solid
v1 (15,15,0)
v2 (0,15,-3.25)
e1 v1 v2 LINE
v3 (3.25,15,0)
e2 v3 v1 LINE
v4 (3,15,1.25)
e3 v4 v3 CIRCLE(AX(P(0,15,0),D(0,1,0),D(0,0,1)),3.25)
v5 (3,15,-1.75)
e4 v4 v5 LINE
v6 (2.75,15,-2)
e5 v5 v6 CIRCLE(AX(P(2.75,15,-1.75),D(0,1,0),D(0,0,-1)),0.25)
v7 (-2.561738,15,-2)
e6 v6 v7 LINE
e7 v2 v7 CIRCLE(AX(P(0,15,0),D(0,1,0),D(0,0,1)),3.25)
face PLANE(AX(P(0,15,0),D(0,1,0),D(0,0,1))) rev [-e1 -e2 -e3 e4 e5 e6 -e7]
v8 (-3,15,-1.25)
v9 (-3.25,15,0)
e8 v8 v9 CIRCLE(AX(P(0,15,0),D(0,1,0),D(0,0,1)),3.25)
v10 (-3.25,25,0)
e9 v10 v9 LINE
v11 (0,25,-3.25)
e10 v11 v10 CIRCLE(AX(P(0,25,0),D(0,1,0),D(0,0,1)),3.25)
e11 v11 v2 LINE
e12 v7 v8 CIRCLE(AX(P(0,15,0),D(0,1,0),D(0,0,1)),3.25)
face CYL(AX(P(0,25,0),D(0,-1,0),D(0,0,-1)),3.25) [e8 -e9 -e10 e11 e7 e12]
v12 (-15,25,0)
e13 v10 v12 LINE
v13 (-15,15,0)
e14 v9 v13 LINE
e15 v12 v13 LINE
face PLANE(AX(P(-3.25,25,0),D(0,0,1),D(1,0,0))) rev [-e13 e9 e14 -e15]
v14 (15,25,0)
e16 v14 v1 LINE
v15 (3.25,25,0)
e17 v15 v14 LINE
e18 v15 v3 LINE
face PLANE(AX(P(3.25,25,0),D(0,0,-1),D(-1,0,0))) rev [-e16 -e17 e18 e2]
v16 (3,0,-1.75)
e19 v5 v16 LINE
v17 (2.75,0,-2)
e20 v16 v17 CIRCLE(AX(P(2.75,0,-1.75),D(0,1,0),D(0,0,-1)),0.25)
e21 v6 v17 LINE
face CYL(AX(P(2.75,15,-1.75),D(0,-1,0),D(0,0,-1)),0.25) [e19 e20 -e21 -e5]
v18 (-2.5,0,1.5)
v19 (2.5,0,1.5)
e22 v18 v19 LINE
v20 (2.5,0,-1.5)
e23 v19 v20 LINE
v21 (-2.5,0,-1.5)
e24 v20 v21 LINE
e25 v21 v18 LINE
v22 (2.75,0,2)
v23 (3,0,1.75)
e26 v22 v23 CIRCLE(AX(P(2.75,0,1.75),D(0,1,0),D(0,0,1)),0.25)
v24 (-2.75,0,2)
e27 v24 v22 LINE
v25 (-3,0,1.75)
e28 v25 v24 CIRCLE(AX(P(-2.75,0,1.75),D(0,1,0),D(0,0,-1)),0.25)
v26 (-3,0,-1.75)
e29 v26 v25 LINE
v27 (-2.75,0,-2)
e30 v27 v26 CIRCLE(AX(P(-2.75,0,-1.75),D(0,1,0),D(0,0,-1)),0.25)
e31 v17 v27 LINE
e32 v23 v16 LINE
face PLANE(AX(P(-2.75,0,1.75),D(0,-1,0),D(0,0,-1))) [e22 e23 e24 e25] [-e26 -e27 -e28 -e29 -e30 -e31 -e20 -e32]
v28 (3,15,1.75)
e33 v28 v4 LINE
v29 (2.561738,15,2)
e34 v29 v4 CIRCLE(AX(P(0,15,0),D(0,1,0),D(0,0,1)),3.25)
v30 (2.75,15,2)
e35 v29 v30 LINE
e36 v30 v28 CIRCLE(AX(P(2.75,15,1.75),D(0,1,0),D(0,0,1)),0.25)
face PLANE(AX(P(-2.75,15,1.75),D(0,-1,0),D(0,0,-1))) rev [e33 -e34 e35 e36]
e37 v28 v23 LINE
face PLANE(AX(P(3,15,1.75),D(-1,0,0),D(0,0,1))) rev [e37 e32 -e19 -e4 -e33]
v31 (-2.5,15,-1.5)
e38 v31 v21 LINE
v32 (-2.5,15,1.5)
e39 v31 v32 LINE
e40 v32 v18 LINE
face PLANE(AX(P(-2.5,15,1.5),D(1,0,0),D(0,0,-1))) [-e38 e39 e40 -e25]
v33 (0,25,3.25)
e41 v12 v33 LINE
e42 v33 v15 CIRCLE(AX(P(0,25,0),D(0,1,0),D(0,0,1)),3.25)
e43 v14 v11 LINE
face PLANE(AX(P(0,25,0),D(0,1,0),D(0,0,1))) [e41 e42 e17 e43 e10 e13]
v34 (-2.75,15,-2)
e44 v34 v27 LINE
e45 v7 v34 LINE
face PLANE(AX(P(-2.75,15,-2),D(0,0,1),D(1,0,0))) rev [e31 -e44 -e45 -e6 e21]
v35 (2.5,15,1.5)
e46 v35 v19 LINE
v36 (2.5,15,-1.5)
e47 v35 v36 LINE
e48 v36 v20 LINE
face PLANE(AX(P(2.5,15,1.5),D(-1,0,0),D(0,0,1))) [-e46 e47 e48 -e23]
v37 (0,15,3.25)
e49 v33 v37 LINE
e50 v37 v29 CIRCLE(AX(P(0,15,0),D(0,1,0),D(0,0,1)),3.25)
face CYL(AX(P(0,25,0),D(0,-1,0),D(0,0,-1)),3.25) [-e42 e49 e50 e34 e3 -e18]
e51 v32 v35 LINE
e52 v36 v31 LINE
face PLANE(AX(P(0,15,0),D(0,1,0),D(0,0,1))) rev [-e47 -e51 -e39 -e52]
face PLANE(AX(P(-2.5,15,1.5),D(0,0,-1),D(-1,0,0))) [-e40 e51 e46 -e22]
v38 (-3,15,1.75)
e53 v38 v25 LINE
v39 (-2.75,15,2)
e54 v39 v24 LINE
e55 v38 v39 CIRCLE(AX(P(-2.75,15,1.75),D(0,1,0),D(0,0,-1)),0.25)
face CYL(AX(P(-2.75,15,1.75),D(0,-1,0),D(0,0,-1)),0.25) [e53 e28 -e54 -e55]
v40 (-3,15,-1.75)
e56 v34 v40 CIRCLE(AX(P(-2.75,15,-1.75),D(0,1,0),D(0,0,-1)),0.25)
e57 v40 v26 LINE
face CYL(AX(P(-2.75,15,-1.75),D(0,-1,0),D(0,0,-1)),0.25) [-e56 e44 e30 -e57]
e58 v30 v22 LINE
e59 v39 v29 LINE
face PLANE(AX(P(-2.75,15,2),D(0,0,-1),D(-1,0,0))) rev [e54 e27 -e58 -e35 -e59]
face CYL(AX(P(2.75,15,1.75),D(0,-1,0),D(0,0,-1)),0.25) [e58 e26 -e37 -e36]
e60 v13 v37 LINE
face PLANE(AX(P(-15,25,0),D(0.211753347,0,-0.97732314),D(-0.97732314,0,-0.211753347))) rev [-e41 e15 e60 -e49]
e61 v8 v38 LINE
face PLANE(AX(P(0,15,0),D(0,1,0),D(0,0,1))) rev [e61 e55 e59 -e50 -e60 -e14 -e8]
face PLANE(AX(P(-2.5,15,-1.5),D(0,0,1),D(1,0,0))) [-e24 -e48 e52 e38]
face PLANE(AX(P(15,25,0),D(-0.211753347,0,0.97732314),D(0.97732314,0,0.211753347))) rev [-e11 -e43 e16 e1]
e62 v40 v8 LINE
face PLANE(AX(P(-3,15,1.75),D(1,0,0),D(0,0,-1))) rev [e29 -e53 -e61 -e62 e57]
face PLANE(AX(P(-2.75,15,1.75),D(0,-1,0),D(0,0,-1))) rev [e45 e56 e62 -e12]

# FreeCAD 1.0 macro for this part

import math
import FreeCAD as App
import Part
import Sketcher
from FreeCAD import Vector


def add_polygon(sketch, points):
    """Adds a closed chain of lines whose ends are joined by coincident constraints."""
    first, n = sketch.GeometryCount, len(points)
    for a, b in zip(points, points[1:] + points[:1]):
        sketch.addGeometry(Part.LineSegment(App.Vector(*a, 0), App.Vector(*b, 0)), False)
    for i in range(n):
        sketch.addConstraint(Sketcher.Constraint("Coincident", first + i, 2, first + (i + 1) % n, 1))

doc = App.newDocument("Part")
params = doc.addObject("Spreadsheet::Sheet", "Params")
for row, (alias, value) in enumerate([
    ("sketch1_width", "5 mm"),
    ("sketch1_height", "3 mm"),
    ("sketch1_radius", "0.25 mm"),
    ("sketch1_width2", "5.5 mm"),
    ("sketch1_height2", "3.5 mm"),
    ("pad1_length", "15 mm"),
    ("sketch2_radius", "3.25 mm"),
    ("pad2_length", "10 mm"),
], start=1):
    params.set(f"A{row}", alias)
    params.set(f"B{row}", "=" + value)
    params.setAlias(f"B{row}", alias)

body = doc.addObject("PartDesign::Body", "Body")

sketch1 = body.newObject("Sketcher::SketchObject", "Sketch")
sketch1.AttachmentSupport = (doc.getObject("XZ_Plane"), [""])
sketch1.MapMode = "FlatFace"
sketch1.addGeometry(Part.LineSegment(Vector(-2.75, 2, 0), Vector(2.75, 2, 0)), False)
sketch1.addGeometry(Part.ArcOfCircle(Part.Circle(Vector(2.75, 1.75, 0), Vector(0, 0, 1), 0.25), math.radians(0), math.radians(90)), False)
sketch1.addGeometry(Part.LineSegment(Vector(3, 1.75, 0), Vector(3, -1.75, 0)), False)
sketch1.addGeometry(Part.ArcOfCircle(Part.Circle(Vector(2.75, -1.75, 0), Vector(0, 0, 1), 0.25), math.radians(-90), math.radians(0)), False)
sketch1.addGeometry(Part.LineSegment(Vector(2.75, -2, 0), Vector(-2.75, -2, 0)), False)
sketch1.addGeometry(Part.ArcOfCircle(Part.Circle(Vector(-2.75, -1.75, 0), Vector(0, 0, 1), 0.25), math.radians(-180), math.radians(-90)), False)
sketch1.addGeometry(Part.LineSegment(Vector(-3, -1.75, 0), Vector(-3, 1.75, 0)), False)
sketch1.addGeometry(Part.ArcOfCircle(Part.Circle(Vector(-2.75, 1.75, 0), Vector(0, 0, 1), 0.25), math.radians(90), math.radians(180)), False)
add_polygon(sketch1, [(2.5, 1.5), (-2.5, 1.5), (-2.5, -1.5), (2.5, -1.5)])
sketch1.addConstraint([
    Sketcher.Constraint("Tangent", 0, 2, 1, 2),
    Sketcher.Constraint("Tangent", 1, 1, 2, 1),
    Sketcher.Constraint("Tangent", 2, 2, 3, 2),
    Sketcher.Constraint("Tangent", 3, 1, 4, 1),
    Sketcher.Constraint("Tangent", 4, 2, 5, 2),
    Sketcher.Constraint("Tangent", 5, 1, 6, 1),
    Sketcher.Constraint("Tangent", 6, 2, 7, 2),
    Sketcher.Constraint("Tangent", 7, 1, 0, 1),
    Sketcher.Constraint("Horizontal", 0),
    Sketcher.Constraint("Vertical", 2),
    Sketcher.Constraint("Horizontal", 4),
    Sketcher.Constraint("Vertical", 6),
    Sketcher.Constraint("Horizontal", 8),
    Sketcher.Constraint("Vertical", 9),
    Sketcher.Constraint("Horizontal", 10),
    Sketcher.Constraint("Vertical", 11),
    Sketcher.Constraint("Equal", 1, 3),
    Sketcher.Constraint("Equal", 3, 5),
    Sketcher.Constraint("Equal", 5, 7),
    Sketcher.Constraint("Symmetric", 1, 3, 5, 3, -1, 1),
    Sketcher.Constraint("Symmetric", 8, 2, 10, 2, -1, 1),
    Sketcher.Constraint("DistanceX", 8, 2, 8, 1, 5.0),
    Sketcher.Constraint("DistanceY", 9, 2, 9, 1, 3.0),
    Sketcher.Constraint("Radius", 1, 0.25),
    Sketcher.Constraint("DistanceX", 0, 1, 0, 2, 5.5),
    Sketcher.Constraint("DistanceY", 2, 2, 2, 1, 3.5),
])
sketch1.setExpression("Constraints[25]", "Params.sketch1_width")
sketch1.setExpression("Constraints[26]", "Params.sketch1_height")
sketch1.setExpression("Constraints[27]", "Params.sketch1_radius")
sketch1.setExpression("Constraints[28]", "Params.sketch1_width2")
sketch1.setExpression("Constraints[29]", "Params.sketch1_height2")
pad1 = body.newObject("PartDesign::Pad", "Pad")
pad1.Profile = sketch1
pad1.setExpression("Length", "Params.pad1_length")
pad1.Reversed = True

sketch2 = body.newObject("Sketcher::SketchObject", "Sketch001")
sketch2.AttachmentSupport = (doc.getObject("XZ_Plane"), [""])
sketch2.MapMode = "FlatFace"
sketch2.AttachmentOffset = App.Placement(Vector(0, 0, -15), App.Rotation())
sketch2.addGeometry([
    Part.LineSegment(Vector(-3.25, 0, 0), Vector(-15, 0, 0)),
    Part.LineSegment(Vector(-15, 0, 0), Vector(0, 3.25, 0)),
    Part.ArcOfCircle(Part.Circle(Vector(0, 0, 0), Vector(0, 0, 1), 3.25), math.radians(0), math.radians(90)),
    Part.LineSegment(Vector(3.25, 0, 0), Vector(15, 0, 0)),
    Part.LineSegment(Vector(15, 0, 0), Vector(0, -3.25, 0)),
    Part.ArcOfCircle(Part.Circle(Vector(0, 0, 0), Vector(0, 0, 1), 3.25), math.radians(180), math.radians(270)),
], False)
sketch2.addConstraint([
    Sketcher.Constraint("Coincident", 0, 2, 1, 1),
    Sketcher.Constraint("Coincident", 1, 2, 2, 2),
    Sketcher.Constraint("Coincident", 2, 1, 3, 1),
    Sketcher.Constraint("Coincident", 3, 2, 4, 1),
    Sketcher.Constraint("Coincident", 4, 2, 5, 2),
    Sketcher.Constraint("Coincident", 5, 1, 0, 1),
    Sketcher.Constraint("Horizontal", 0),
    Sketcher.Constraint("Horizontal", 3),
    Sketcher.Constraint("Coincident", 2, 3, -1, 1),
    Sketcher.Constraint("Coincident", 5, 3, -1, 1),
    Sketcher.Constraint("Equal", 2, 5),
    Sketcher.Constraint("Symmetric", 0, 2, 3, 2, -1, 1),
    Sketcher.Constraint("PointOnObject", 0, 2, -1),
    Sketcher.Constraint("PointOnObject", 1, 2, -2),
    Sketcher.Constraint("PointOnObject", 4, 2, -2),
    Sketcher.Constraint("Radius", 2, 3.25),
    Sketcher.Constraint("DistanceX", 0, 2, -1, 1, 15.0),
])
sketch2.setExpression("Constraints[15]", "Params.sketch2_radius")
pad2 = body.newObject("PartDesign::Pad", "Pad001")
pad2.Profile = sketch2
pad2.setExpression("Length", "Params.pad2_length")
pad2.Reversed = True

doc.recompute()
